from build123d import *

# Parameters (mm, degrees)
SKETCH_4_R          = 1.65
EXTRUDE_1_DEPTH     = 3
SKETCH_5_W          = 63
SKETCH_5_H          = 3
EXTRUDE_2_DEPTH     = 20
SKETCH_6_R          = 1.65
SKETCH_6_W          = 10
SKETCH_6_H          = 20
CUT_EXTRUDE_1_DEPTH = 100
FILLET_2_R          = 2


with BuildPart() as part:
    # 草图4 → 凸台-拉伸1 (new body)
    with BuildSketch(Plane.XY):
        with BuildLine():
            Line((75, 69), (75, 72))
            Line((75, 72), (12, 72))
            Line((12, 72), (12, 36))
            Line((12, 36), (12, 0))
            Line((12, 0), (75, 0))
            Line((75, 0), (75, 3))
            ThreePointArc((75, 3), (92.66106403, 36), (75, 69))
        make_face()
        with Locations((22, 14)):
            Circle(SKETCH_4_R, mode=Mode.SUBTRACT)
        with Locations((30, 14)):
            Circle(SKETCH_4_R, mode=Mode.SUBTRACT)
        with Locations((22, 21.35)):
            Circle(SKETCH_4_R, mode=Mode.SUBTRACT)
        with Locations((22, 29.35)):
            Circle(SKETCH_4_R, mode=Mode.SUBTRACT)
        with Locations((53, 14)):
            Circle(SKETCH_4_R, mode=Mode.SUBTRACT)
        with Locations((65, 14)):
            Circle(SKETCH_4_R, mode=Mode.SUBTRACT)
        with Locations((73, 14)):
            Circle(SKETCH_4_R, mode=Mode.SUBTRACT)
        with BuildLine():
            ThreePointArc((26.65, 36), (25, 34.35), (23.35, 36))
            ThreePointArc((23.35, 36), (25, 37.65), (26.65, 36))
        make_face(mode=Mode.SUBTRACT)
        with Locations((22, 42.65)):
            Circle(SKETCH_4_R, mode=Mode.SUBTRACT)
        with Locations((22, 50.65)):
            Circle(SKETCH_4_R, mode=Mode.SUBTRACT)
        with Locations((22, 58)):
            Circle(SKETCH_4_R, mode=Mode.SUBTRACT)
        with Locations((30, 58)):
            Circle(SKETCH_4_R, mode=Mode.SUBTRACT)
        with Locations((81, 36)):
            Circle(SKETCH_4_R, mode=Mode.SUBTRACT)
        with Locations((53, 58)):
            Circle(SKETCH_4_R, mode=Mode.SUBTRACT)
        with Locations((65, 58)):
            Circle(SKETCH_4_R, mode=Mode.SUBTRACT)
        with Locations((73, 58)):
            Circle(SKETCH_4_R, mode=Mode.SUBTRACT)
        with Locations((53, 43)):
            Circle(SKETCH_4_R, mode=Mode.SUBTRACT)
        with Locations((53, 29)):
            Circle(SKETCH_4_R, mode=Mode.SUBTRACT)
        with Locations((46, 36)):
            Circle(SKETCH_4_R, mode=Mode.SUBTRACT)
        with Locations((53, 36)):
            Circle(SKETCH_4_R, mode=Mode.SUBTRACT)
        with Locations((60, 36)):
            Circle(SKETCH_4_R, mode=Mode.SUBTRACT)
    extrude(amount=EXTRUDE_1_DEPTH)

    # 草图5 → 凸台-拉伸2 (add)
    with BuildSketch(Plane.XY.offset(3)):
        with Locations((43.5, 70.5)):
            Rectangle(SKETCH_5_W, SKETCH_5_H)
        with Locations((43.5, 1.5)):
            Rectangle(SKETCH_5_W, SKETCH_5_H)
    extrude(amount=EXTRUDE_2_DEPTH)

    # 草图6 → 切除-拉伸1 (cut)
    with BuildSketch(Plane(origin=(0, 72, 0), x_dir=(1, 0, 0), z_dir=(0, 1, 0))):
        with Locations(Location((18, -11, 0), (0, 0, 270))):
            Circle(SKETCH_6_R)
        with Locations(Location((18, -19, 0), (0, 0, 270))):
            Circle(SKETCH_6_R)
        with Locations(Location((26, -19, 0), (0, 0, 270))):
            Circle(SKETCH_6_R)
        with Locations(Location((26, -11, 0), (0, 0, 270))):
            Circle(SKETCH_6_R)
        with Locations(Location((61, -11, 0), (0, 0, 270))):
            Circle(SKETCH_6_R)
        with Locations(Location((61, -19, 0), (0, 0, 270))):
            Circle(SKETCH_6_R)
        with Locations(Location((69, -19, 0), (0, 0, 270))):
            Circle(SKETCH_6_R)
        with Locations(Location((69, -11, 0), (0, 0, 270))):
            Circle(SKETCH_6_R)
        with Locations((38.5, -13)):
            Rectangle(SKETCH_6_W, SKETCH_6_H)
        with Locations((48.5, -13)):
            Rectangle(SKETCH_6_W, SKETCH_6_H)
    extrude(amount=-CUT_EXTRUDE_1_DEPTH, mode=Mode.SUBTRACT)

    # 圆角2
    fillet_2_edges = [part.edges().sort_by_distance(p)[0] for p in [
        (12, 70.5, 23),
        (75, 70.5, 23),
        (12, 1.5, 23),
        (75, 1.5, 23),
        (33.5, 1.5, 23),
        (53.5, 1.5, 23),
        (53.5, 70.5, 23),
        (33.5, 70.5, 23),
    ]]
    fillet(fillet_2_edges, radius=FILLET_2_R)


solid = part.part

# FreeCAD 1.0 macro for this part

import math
import FreeCAD as App
import Part
import Sketcher

V = App.Vector


def edges_at(feature, points):
    """Names of the edges that pass closest to the given points."""
    edges = feature.Shape.Edges
    near = lambda p: min(range(len(edges)), key=lambda i: edges[i].distToShape(Part.Vertex(*p))[0])
    return sorted({f"Edge{near(p) + 1}" for p in points})

doc = App.newDocument("Part")
body = doc.addObject("PartDesign::Body", "Body")

# Sketch on XY plane
sketch1 = doc.addObject("Sketcher::SketchObject", "Sketch")
body.addObject(sketch1)
sketch1.AttachmentSupport = (doc.XY_Plane, [""])
sketch1.MapMode = "FlatFace"
sketch1.addGeometry(Part.LineSegment(V(75, 69, 0), V(75, 72, 0)), False)
sketch1.addGeometry(Part.LineSegment(V(75, 72, 0), V(12, 72, 0)), False)
sketch1.addGeometry(Part.LineSegment(V(12, 72, 0), V(12, 0, 0)), False)
sketch1.addGeometry(Part.LineSegment(V(12, 0, 0), V(75, 0, 0)), False)
sketch1.addGeometry(Part.LineSegment(V(75, 0, 0), V(75, 3, 0)), False)
sketch1.addGeometry(Part.ArcOfCircle(Part.Circle(V(53, 36, 0), V(0, 0, 1), 39.661064), math.radians(-56.309932), math.radians(56.309932)), False)
sketch1.addGeometry(Part.Circle(V(22, 14, 0), V(0, 0, 1), 1.65), False)
sketch1.addGeometry(Part.Circle(V(30, 14, 0), V(0, 0, 1), 1.65), False)
sketch1.addGeometry(Part.Circle(V(22, 21.35, 0), V(0, 0, 1), 1.65), False)
sketch1.addGeometry(Part.Circle(V(22, 29.35, 0), V(0, 0, 1), 1.65), False)
sketch1.addGeometry(Part.Circle(V(53, 14, 0), V(0, 0, 1), 1.65), False)
sketch1.addGeometry(Part.Circle(V(65, 14, 0), V(0, 0, 1), 1.65), False)
sketch1.addGeometry(Part.Circle(V(73, 14, 0), V(0, 0, 1), 1.65), False)
sketch1.addGeometry(Part.Circle(V(53, 29, 0), V(0, 0, 1), 1.65), False)
sketch1.addGeometry(Part.Circle(V(25, 36, 0), V(0, 0, 1), 1.65), False)
sketch1.addGeometry(Part.Circle(V(22, 42.65, 0), V(0, 0, 1), 1.65), False)
sketch1.addGeometry(Part.Circle(V(46, 36, 0), V(0, 0, 1), 1.65), False)
sketch1.addGeometry(Part.Circle(V(22, 50.65, 0), V(0, 0, 1), 1.65), False)
sketch1.addGeometry(Part.Circle(V(22, 58, 0), V(0, 0, 1), 1.65), False)
sketch1.addGeometry(Part.Circle(V(30, 58, 0), V(0, 0, 1), 1.65), False)
sketch1.addGeometry(Part.Circle(V(53, 36, 0), V(0, 0, 1), 1.65), False)
sketch1.addGeometry(Part.Circle(V(60, 36, 0), V(0, 0, 1), 1.65), False)
sketch1.addGeometry(Part.Circle(V(53, 43, 0), V(0, 0, 1), 1.65), False)
sketch1.addGeometry(Part.Circle(V(81, 36, 0), V(0, 0, 1), 1.65), False)
sketch1.addGeometry(Part.Circle(V(53, 58, 0), V(0, 0, 1), 1.65), False)
sketch1.addGeometry(Part.Circle(V(65, 58, 0), V(0, 0, 1), 1.65), False)
sketch1.addGeometry(Part.Circle(V(73, 58, 0), V(0, 0, 1), 1.65), False)
sketch1.addConstraint(Sketcher.Constraint("Coincident", 0, 2, 1, 1))
sketch1.addConstraint(Sketcher.Constraint("Coincident", 1, 2, 2, 1))
sketch1.addConstraint(Sketcher.Constraint("Coincident", 2, 2, 3, 1))
sketch1.addConstraint(Sketcher.Constraint("Coincident", 3, 2, 4, 1))
sketch1.addConstraint(Sketcher.Constraint("Coincident", 4, 2, 5, 1))
sketch1.addConstraint(Sketcher.Constraint("Coincident", 5, 2, 0, 1))
sketch1.addConstraint(Sketcher.Constraint("Vertical", 0))
sketch1.addConstraint(Sketcher.Constraint("Horizontal", 1))
sketch1.addConstraint(Sketcher.Constraint("Vertical", 2))
sketch1.addConstraint(Sketcher.Constraint("Horizontal", 3))
sketch1.addConstraint(Sketcher.Constraint("Vertical", 4))
sketch1.addConstraint(Sketcher.Constraint("Coincident", 20, 3, 5, 3))
sketch1.addConstraint(Sketcher.Constraint("Equal", 6, 7))
sketch1.addConstraint(Sketcher.Constraint("Equal", 7, 8))
sketch1.addConstraint(Sketcher.Constraint("Equal", 8, 9))
sketch1.addConstraint(Sketcher.Constraint("Equal", 9, 10))
sketch1.addConstraint(Sketcher.Constraint("Equal", 10, 11))
sketch1.addConstraint(Sketcher.Constraint("Equal", 11, 12))
sketch1.addConstraint(Sketcher.Constraint("Equal", 12, 13))
sketch1.addConstraint(Sketcher.Constraint("Equal", 13, 14))
sketch1.addConstraint(Sketcher.Constraint("Equal", 14, 15))
sketch1.addConstraint(Sketcher.Constraint("Equal", 15, 16))
sketch1.addConstraint(Sketcher.Constraint("Equal", 16, 17))
sketch1.addConstraint(Sketcher.Constraint("Equal", 17, 18))
sketch1.addConstraint(Sketcher.Constraint("Equal", 18, 19))
sketch1.addConstraint(Sketcher.Constraint("Equal", 19, 20))
sketch1.addConstraint(Sketcher.Constraint("Equal", 20, 21))
sketch1.addConstraint(Sketcher.Constraint("Equal", 21, 22))
sketch1.addConstraint(Sketcher.Constraint("Equal", 22, 23))
sketch1.addConstraint(Sketcher.Constraint("Equal", 23, 24))
sketch1.addConstraint(Sketcher.Constraint("Equal", 24, 25))
sketch1.addConstraint(Sketcher.Constraint("Equal", 25, 26))
sketch1.addConstraint(Sketcher.Constraint("PointOnObject", 2, 2, -1))
sketch1.addConstraint(Sketcher.Constraint("Horizontal", 6, 3, 7, 3))
sketch1.addConstraint(Sketcher.Constraint("Horizontal", 7, 3, 10, 3))
sketch1.addConstraint(Sketcher.Constraint("Horizontal", 10, 3, 11, 3))
sketch1.addConstraint(Sketcher.Constraint("Horizontal", 11, 3, 12, 3))
sketch1.addConstraint(Sketcher.Constraint("Horizontal", 5, 3, 14, 3))
sketch1.addConstraint(Sketcher.Constraint("Horizontal", 14, 3, 16, 3))
sketch1.addConstraint(Sketcher.Constraint("Horizontal", 18, 3, 19, 3))
sketch1.addConstraint(Sketcher.Constraint("Horizontal", 20, 3, 21, 3))
sketch1.addConstraint(Sketcher.Constraint("Horizontal", 21, 3, 23, 3))
sketch1.addConstraint(Sketcher.Constraint("Horizontal", 19, 3, 24, 3))
sketch1.addConstraint(Sketcher.Constraint("Horizontal", 24, 3, 25, 3))
sketch1.addConstraint(Sketcher.Constraint("Horizontal", 25, 3, 26, 3))
sketch1.addConstraint(Sketcher.Constraint("Vertical", 6, 3, 8, 3))
sketch1.addConstraint(Sketcher.Constraint("Vertical", 8, 3, 9, 3))
sketch1.addConstraint(Sketcher.Constraint("Vertical", 5, 3, 10, 3))
sketch1.addConstraint(Sketcher.Constraint("Vertical", 10, 3, 13, 3))
sketch1.addConstraint(Sketcher.Constraint("Vertical", 9, 3, 15, 3))
sketch1.addConstraint(Sketcher.Constraint("Vertical", 15, 3, 17, 3))
sketch1.addConstraint(Sketcher.Constraint("Vertical", 17, 3, 18, 3))
sketch1.addConstraint(Sketcher.Constraint("Vertical", 7, 3, 19, 3))
sketch1.addConstraint(Sketcher.Constraint("Vertical", 20, 3, 22, 3))
sketch1.addConstraint(Sketcher.Constraint("Vertical", 22, 3, 24, 3))
sketch1.addConstraint(Sketcher.Constraint("Vertical", 11, 3, 25, 3))
sketch1.addConstraint(Sketcher.Constraint("Vertical", 12, 3, 26, 3))
sketch1.addConstraint(Sketcher.Constraint("Vertical", 0, 2, 3, 2))
sketch1.addConstraint(Sketcher.Constraint("Equal", 0, 4))
sketch1.addConstraint(Sketcher.Constraint("Diameter", 6, 3.3))
sketch1.addConstraint(Sketcher.Constraint("DistanceX", 1, 2, 1, 1, 63.0))
sketch1.addConstraint(Sketcher.Constraint("DistanceY", 0, 1, 0, 2, 3.0))
sketch1.addConstraint(Sketcher.Constraint("DistanceY", 2, 2, 2, 1, 72.0))
sketch1.addConstraint(Sketcher.Constraint("DistanceX", -1, 1, 5, 3, 53.0))
sketch1.addConstraint(Sketcher.Constraint("DistanceX", -1, 1, 6, 3, 22.0))
sketch1.addConstraint(Sketcher.Constraint("DistanceY", -1, 1, 6, 3, 14.0))
sketch1.addConstraint(Sketcher.Constraint("DistanceX", -1, 1, 7, 3, 30.0))
sketch1.addConstraint(Sketcher.Constraint("DistanceX", -1, 1, 11, 3, 65.0))
sketch1.addConstraint(Sketcher.Constraint("DistanceX", -1, 1, 12, 3, 73.0))
sketch1.addConstraint(Sketcher.Constraint("DistanceY", -1, 1, 13, 3, 29.0))
sketch1.addConstraint(Sketcher.Constraint("DistanceX", -1, 1, 14, 3, 25.0))
sketch1.addConstraint(Sketcher.Constraint("DistanceX", -1, 1, 16, 3, 46.0))
sketch1.addConstraint(Sketcher.Constraint("DistanceY", -1, 1, 18, 3, 58.0))
sketch1.addConstraint(Sketcher.Constraint("DistanceX", -1, 1, 21, 3, 60.0))
sketch1.addConstraint(Sketcher.Constraint("DistanceY", -1, 1, 22, 3, 43.0))
sketch1.addConstraint(Sketcher.Constraint("DistanceX", -1, 1, 23, 3, 81.0))
sketch1.addConstraint(Sketcher.Constraint("DistanceX", -1, 1, 0, 2, 75.0))
sketch1.addConstraint(Sketcher.Constraint("DistanceY", 8, 3, 9, 3, 8.0))
sketch1.addConstraint(Sketcher.Constraint("DistanceY", 15, 3, 17, 3, 8.0))
sketch1.addConstraint(Sketcher.Constraint("DistanceY", 9, 3, 15, 3, 13.3))
sketch1.addConstraint(Sketcher.Constraint("DistanceY", -1, 1, 8, 3, 21.35))
pad1 = doc.addObject("PartDesign::Pad", "Pad")
body.addObject(pad1)
pad1.Profile = sketch1
pad1.Length = 3

# Sketch on XY plane
sketch2 = doc.addObject("Sketcher::SketchObject", "Sketch001")
body.addObject(sketch2)
sketch2.AttachmentSupport = (doc.XY_Plane, [""])
sketch2.MapMode = "FlatFace"
sketch2.AttachmentOffset = App.Placement(V(0, 0, 3), App.Rotation())
sketch2.addGeometry(Part.LineSegment(V(12, 72, 0), V(12, 69, 0)), False)
sketch2.addGeometry(Part.LineSegment(V(12, 69, 0), V(75, 69, 0)), False)
sketch2.addGeometry(Part.LineSegment(V(75, 69, 0), V(75, 72, 0)), False)
sketch2.addGeometry(Part.LineSegment(V(75, 72, 0), V(12, 72, 0)), False)
sketch2.addGeometry(Part.LineSegment(V(12, 3, 0), V(12, 0, 0)), False)
sketch2.addGeometry(Part.LineSegment(V(12, 0, 0), V(75, 0, 0)), False)
sketch2.addGeometry(Part.LineSegment(V(75, 0, 0), V(75, 3, 0)), False)
sketch2.addGeometry(Part.LineSegment(V(75, 3, 0), V(12, 3, 0)), False)
sketch2.addConstraint(Sketcher.Constraint("Coincident", 0, 2, 1, 1))
sketch2.addConstraint(Sketcher.Constraint("Coincident", 1, 2, 2, 1))
sketch2.addConstraint(Sketcher.Constraint("Coincident", 2, 2, 3, 1))
sketch2.addConstraint(Sketcher.Constraint("Coincident", 3, 2, 0, 1))
sketch2.addConstraint(Sketcher.Constraint("Coincident", 4, 2, 5, 1))
sketch2.addConstraint(Sketcher.Constraint("Coincident", 5, 2, 6, 1))
sketch2.addConstraint(Sketcher.Constraint("Coincident", 6, 2, 7, 1))
sketch2.addConstraint(Sketcher.Constraint("Coincident", 7, 2, 4, 1))
sketch2.addConstraint(Sketcher.Constraint("Vertical", 0))
sketch2.addConstraint(Sketcher.Constraint("Horizontal", 1))
sketch2.addConstraint(Sketcher.Constraint("Vertical", 2))
sketch2.addConstraint(Sketcher.Constraint("Horizontal", 3))
sketch2.addConstraint(Sketcher.Constraint("Vertical", 4))
sketch2.addConstraint(Sketcher.Constraint("Horizontal", 5))
sketch2.addConstraint(Sketcher.Constraint("Vertical", 6))
sketch2.addConstraint(Sketcher.Constraint("Horizontal", 7))
sketch2.addConstraint(Sketcher.Constraint("PointOnObject", 4, 2, -1))
sketch2.addConstraint(Sketcher.Constraint("Vertical", 3, 2, 4, 2))
sketch2.addConstraint(Sketcher.Constraint("Vertical", 2, 2, 5, 2))
sketch2.addConstraint(Sketcher.Constraint("Equal", 2, 4))
sketch2.addConstraint(Sketcher.Constraint("DistanceX", 1, 1, 1, 2, 63.0))
sketch2.addConstraint(Sketcher.Constraint("DistanceY", 0, 2, 0, 1, 3.0))
sketch2.addConstraint(Sketcher.Constraint("DistanceX", -1, 1, 0, 2, 12.0))
sketch2.addConstraint(Sketcher.Constraint("DistanceY", -1, 1, 0, 2, 69.0))
pad2 = doc.addObject("PartDesign::Pad", "Pad001")
body.addObject(pad2)
pad2.Profile = sketch2
pad2.Length = 20

# Sketch on XZ plane
sketch3 = doc.addObject("Sketcher::SketchObject", "Sketch002")
body.addObject(sketch3)
sketch3.AttachmentSupport = (doc.XZ_Plane, [""])
sketch3.MapMode = "FlatFace"
sketch3.AttachmentOffset = App.Placement(V(0, 0, -72), App.Rotation())
sketch3.addGeometry(Part.Circle(V(18, 11, 0), V(0, 0, 1), 1.65), False)
sketch3.addGeometry(Part.Circle(V(18, 19, 0), V(0, 0, 1), 1.65), False)
sketch3.addGeometry(Part.Circle(V(26, 19, 0), V(0, 0, 1), 1.65), False)
sketch3.addGeometry(Part.Circle(V(26, 11, 0), V(0, 0, 1), 1.65), False)
sketch3.addGeometry(Part.Circle(V(61, 11, 0), V(0, 0, 1), 1.65), False)
sketch3.addGeometry(Part.Circle(V(61, 19, 0), V(0, 0, 1), 1.65), False)
sketch3.addGeometry(Part.Circle(V(69, 19, 0), V(0, 0, 1), 1.65), False)
sketch3.addGeometry(Part.Circle(V(69, 11, 0), V(0, 0, 1), 1.65), False)
sketch3.addGeometry(Part.LineSegment(V(33.5, 3, 0), V(33.5, 23, 0)), False)
sketch3.addGeometry(Part.LineSegment(V(33.5, 23, 0), V(53.5, 23, 0)), False)
sketch3.addGeometry(Part.LineSegment(V(53.5, 23, 0), V(53.5, 3, 0)), False)
sketch3.addGeometry(Part.LineSegment(V(53.5, 3, 0), V(33.5, 3, 0)), False)
sketch3.addConstraint(Sketcher.Constraint("Coincident", 8, 2, 9, 1))
sketch3.addConstraint(Sketcher.Constraint("Coincident", 9, 2, 10, 1))
sketch3.addConstraint(Sketcher.Constraint("Coincident", 10, 2, 11, 1))
sketch3.addConstraint(Sketcher.Constraint("Coincident", 11, 2, 8, 1))
sketch3.addConstraint(Sketcher.Constraint("Vertical", 8))
sketch3.addConstraint(Sketcher.Constraint("Horizontal", 9))
sketch3.addConstraint(Sketcher.Constraint("Vertical", 10))
sketch3.addConstraint(Sketcher.Constraint("Horizontal", 11))
sketch3.addConstraint(Sketcher.Constraint("Equal", 0, 1))
sketch3.addConstraint(Sketcher.Constraint("Equal", 1, 2))
sketch3.addConstraint(Sketcher.Constraint("Equal", 2, 3))
sketch3.addConstraint(Sketcher.Constraint("Equal", 3, 4))
sketch3.addConstraint(Sketcher.Constraint("Equal", 4, 5))
sketch3.addConstraint(Sketcher.Constraint("Equal", 5, 6))
sketch3.addConstraint(Sketcher.Constraint("Equal", 6, 7))
sketch3.addConstraint(Sketcher.Constraint("Horizontal", 1, 3, 2, 3))
sketch3.addConstraint(Sketcher.Constraint("Horizontal", 0, 3, 3, 3))
sketch3.addConstraint(Sketcher.Constraint("Horizontal", 3, 3, 4, 3))
sketch3.addConstraint(Sketcher.Constraint("Horizontal", 2, 3, 5, 3))
sketch3.addConstraint(Sketcher.Constraint("Horizontal", 5, 3, 6, 3))
sketch3.addConstraint(Sketcher.Constraint("Horizontal", 4, 3, 7, 3))
sketch3.addConstraint(Sketcher.Constraint("Vertical", 0, 3, 1, 3))
sketch3.addConstraint(Sketcher.Constraint("Vertical", 2, 3, 3, 3))
sketch3.addConstraint(Sketcher.Constraint("Vertical", 4, 3, 5, 3))
sketch3.addConstraint(Sketcher.Constraint("Vertical", 6, 3, 7, 3))
sketch3.addConstraint(Sketcher.Constraint("Equal", 11, 8))
sketch3.addConstraint(Sketcher.Constraint("Diameter", 0, 3.3))
sketch3.addConstraint(Sketcher.Constraint("DistanceX", 9, 1, 9, 2, 20.0))
sketch3.addConstraint(Sketcher.Constraint("DistanceX", -1, 1, 0, 3, 18.0))
sketch3.addConstraint(Sketcher.Constraint("DistanceY", -1, 1, 0, 3, 11.0))
sketch3.addConstraint(Sketcher.Constraint("DistanceY", -1, 1, 1, 3, 19.0))
sketch3.addConstraint(Sketcher.Constraint("DistanceX", -1, 1, 2, 3, 26.0))
sketch3.addConstraint(Sketcher.Constraint("DistanceX", -1, 1, 4, 3, 61.0))
sketch3.addConstraint(Sketcher.Constraint("DistanceX", -1, 1, 6, 3, 69.0))
sketch3.addConstraint(Sketcher.Constraint("DistanceY", -1, 1, 8, 2, 23.0))
sketch3.addConstraint(Sketcher.Constraint("DistanceX", -1, 1, 8, 2, 33.5))
pocket1 = doc.addObject("PartDesign::Pocket", "Pocket")
body.addObject(pocket1)
pocket1.Profile = sketch3
pocket1.Length = 100
pocket1.Reversed = True
doc.recompute()

fillet = doc.addObject("PartDesign::Fillet", "Fillet")
body.addObject(fillet)
fillet.Base = (pocket1, edges_at(pocket1, [
    (12, 70.5, 23),
    (75, 70.5, 23),
    (12, 1.5, 23),
    (75, 1.5, 23),
    (33.5, 1.5, 23),
    (53.5, 1.5, 23),
    (53.5, 70.5, 23),
    (33.5, 70.5, 23),
]))
fillet.Radius = 2

doc.recompute()
